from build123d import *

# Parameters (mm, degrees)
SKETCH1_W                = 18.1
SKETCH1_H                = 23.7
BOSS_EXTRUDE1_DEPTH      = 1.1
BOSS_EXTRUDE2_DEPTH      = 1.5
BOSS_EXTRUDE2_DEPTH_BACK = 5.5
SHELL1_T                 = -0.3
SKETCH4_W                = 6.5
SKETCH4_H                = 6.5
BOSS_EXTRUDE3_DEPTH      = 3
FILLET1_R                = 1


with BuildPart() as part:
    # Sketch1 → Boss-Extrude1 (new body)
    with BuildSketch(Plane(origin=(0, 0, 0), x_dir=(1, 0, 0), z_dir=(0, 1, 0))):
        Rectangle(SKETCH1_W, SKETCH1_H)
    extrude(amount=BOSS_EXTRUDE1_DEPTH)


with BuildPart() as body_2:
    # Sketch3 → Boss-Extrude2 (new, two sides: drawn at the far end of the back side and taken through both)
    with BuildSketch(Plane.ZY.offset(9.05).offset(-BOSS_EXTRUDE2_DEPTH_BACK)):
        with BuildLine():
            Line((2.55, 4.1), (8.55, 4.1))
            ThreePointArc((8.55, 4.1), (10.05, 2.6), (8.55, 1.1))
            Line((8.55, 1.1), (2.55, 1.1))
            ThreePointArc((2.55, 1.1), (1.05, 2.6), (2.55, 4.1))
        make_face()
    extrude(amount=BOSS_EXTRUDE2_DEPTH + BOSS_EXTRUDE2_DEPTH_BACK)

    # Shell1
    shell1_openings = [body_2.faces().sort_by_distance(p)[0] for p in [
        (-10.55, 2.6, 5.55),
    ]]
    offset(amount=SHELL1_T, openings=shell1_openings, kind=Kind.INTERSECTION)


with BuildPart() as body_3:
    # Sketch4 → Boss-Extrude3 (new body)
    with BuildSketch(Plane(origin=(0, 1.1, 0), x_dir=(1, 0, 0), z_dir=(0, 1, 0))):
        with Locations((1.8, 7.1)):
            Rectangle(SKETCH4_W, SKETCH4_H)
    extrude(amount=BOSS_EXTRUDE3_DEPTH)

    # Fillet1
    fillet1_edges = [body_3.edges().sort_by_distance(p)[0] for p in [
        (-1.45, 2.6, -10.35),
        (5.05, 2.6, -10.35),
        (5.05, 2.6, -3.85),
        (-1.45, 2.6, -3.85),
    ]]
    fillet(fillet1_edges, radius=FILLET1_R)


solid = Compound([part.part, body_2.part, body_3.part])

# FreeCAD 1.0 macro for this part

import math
import FreeCAD as App
import Part
import Sketcher

V = App.Vector


def edges_at(feature, points):
    """Names of the edges that pass closest to the given points."""
    edges = feature.Shape.Edges
    near = lambda p: min(range(len(edges)), key=lambda i: edges[i].distToShape(Part.Vertex(*p))[0])
    return sorted({f"Edge{near(p) + 1}" for p in points})


def faces_at(feature, points):
    """Names of the faces that lie closest to the given points."""
    faces = feature.Shape.Faces
    near = lambda p: min(range(len(faces)), key=lambda i: faces[i].distToShape(Part.Vertex(*p))[0])
    return sorted({f"Face{near(p) + 1}" for p in points})


def add_polygon(sketch, points):
    """Adds a closed chain of lines whose ends are joined by coincident constraints."""
    first, n = sketch.GeometryCount, len(points)
    for a, b in zip(points, points[1:] + points[:1]):
        sketch.addGeometry(Part.LineSegment(App.Vector(*a, 0), App.Vector(*b, 0)), False)
    for i in range(n):
        sketch.addConstraint(Sketcher.Constraint("Coincident", first + i, 2, first + (i + 1) % n, 1))

doc = App.newDocument("Part")
body = doc.addObject("PartDesign::Body", "Body")

# Sketch on XZ plane
sketch1 = body.newObject("Sketcher::SketchObject", "Sketch")
sketch1.AttachmentSupport = (doc.getObject("XZ_Plane"), [""])
sketch1.MapMode = "FlatFace"
add_polygon(sketch1, [(-9, -12), (-9, 12), (9, 12), (9, -12)])  # lines 0-3
sketch1.addConstraint([
    Sketcher.Constraint("Vertical", 0),
    Sketcher.Constraint("Horizontal", 1),
    Sketcher.Constraint("Vertical", 2),
    Sketcher.Constraint("Horizontal", 3),
    Sketcher.Constraint("Symmetric", 0, 2, 2, 2, -1, 1),
    Sketcher.Constraint("DistanceX", 1, 1, 1, 2, 18.1),
    Sketcher.Constraint("DistanceY", 0, 1, 0, 2, 23.7),
])
pad1 = body.newObject("PartDesign::Pad", "Pad")
pad1.Profile = sketch1
pad1.Length = 1.1
pad1.Reversed = True
body2 = doc.addObject("PartDesign::Body", "Body001")

# Sketch on YZ plane
sketch2 = body2.newObject("Sketcher::SketchObject", "Sketch001")
sketch2.AttachmentSupport = (doc.getObject("YZ_Plane001"), [""])
sketch2.MapMode = "FlatFace"
sketch2.AttachmentOffset = App.Placement(V(0, 0, -9.05), App.Rotation())
sketch2.addGeometry([
    Part.LineSegment(V(4.1, 8.6, 0), V(4.1, 2.5, 0)),
    Part.ArcOfCircle(Part.Circle(V(2.6, 2.5, 0), V(0, 0, 1), 1.5), math.radians(180), math.radians(360)),
    Part.LineSegment(V(1.1, 2.5, 0), V(1.1, 8.6, 0)),
    Part.ArcOfCircle(Part.Circle(V(2.6, 8.6, 0), V(0, 0, 1), 1.5), math.radians(0), math.radians(180)),
], False)
sketch2.addConstraint([
    Sketcher.Constraint("Tangent", 0, 2, 1, 2),
    Sketcher.Constraint("Tangent", 1, 1, 2, 1),
    Sketcher.Constraint("Tangent", 2, 2, 3, 2),
    Sketcher.Constraint("Tangent", 3, 1, 0, 1),
    Sketcher.Constraint("Vertical", 0),
    Sketcher.Constraint("Vertical", 2),
    Sketcher.Constraint("Radius", 1, 1.5),
    Sketcher.Constraint("DistanceY", 0, 2, 0, 1, 6.0),
    Sketcher.Constraint("DistanceX", -1, 1, 1, 3, 2.6),
    Sketcher.Constraint("DistanceY", -1, 1, 1, 3, 2.55),
])
pad2 = body2.newObject("PartDesign::Pad", "Pad001")
pad2.Profile = sketch2
pad2.Type = "TwoLengths"
pad2.Length = 1.5
pad2.Length2 = 5.5
pad2.Reversed = True
doc.recompute()

thickness = body2.newObject("PartDesign::Thickness", "Thickness")
thickness.Base = (pad2, faces_at(pad2, [(-10.55, 2.6, 5.55)]))
thickness.Value = 0.3
thickness.Reversed = True
thickness.Join = "Intersection"
body3 = doc.addObject("PartDesign::Body", "Body002")

# Sketch on XZ plane
sketch3 = body3.newObject("Sketcher::SketchObject", "Sketch002")
sketch3.AttachmentSupport = (doc.getObject("XZ_Plane002"), [""])
sketch3.MapMode = "FlatFace"
sketch3.AttachmentOffset = App.Placement(V(0, 0, -1.1), App.Rotation())
add_polygon(sketch3, [(-1, -10), (-1, -4), (5, -4), (5, -10)])  # lines 0-3
sketch3.addConstraint([
    Sketcher.Constraint("Vertical", 0),
    Sketcher.Constraint("Horizontal", 1),
    Sketcher.Constraint("Vertical", 2),
    Sketcher.Constraint("Horizontal", 3),
    Sketcher.Constraint("Equal", 3, 0),
    Sketcher.Constraint("DistanceX", 1, 1, 1, 2, 6.5),
    Sketcher.Constraint("DistanceX", 0, 2, -1, 1, 1.45),
    Sketcher.Constraint("DistanceY", 0, 2, -1, 1, 3.85),
])
pad3 = body3.newObject("PartDesign::Pad", "Pad002")
pad3.Profile = sketch3
pad3.Length = 3
pad3.Reversed = True
doc.recompute()

fillet = body3.newObject("PartDesign::Fillet", "Fillet")
fillet.Base = (pad3, edges_at(pad3, [
    (-1.45, 2.6, -10.35),
    (5.05, 2.6, -10.35),
    (5.05, 2.6, -3.85),
    (-1.45, 2.6, -3.85),
]))
fillet.Radius = 1

doc.recompute()
